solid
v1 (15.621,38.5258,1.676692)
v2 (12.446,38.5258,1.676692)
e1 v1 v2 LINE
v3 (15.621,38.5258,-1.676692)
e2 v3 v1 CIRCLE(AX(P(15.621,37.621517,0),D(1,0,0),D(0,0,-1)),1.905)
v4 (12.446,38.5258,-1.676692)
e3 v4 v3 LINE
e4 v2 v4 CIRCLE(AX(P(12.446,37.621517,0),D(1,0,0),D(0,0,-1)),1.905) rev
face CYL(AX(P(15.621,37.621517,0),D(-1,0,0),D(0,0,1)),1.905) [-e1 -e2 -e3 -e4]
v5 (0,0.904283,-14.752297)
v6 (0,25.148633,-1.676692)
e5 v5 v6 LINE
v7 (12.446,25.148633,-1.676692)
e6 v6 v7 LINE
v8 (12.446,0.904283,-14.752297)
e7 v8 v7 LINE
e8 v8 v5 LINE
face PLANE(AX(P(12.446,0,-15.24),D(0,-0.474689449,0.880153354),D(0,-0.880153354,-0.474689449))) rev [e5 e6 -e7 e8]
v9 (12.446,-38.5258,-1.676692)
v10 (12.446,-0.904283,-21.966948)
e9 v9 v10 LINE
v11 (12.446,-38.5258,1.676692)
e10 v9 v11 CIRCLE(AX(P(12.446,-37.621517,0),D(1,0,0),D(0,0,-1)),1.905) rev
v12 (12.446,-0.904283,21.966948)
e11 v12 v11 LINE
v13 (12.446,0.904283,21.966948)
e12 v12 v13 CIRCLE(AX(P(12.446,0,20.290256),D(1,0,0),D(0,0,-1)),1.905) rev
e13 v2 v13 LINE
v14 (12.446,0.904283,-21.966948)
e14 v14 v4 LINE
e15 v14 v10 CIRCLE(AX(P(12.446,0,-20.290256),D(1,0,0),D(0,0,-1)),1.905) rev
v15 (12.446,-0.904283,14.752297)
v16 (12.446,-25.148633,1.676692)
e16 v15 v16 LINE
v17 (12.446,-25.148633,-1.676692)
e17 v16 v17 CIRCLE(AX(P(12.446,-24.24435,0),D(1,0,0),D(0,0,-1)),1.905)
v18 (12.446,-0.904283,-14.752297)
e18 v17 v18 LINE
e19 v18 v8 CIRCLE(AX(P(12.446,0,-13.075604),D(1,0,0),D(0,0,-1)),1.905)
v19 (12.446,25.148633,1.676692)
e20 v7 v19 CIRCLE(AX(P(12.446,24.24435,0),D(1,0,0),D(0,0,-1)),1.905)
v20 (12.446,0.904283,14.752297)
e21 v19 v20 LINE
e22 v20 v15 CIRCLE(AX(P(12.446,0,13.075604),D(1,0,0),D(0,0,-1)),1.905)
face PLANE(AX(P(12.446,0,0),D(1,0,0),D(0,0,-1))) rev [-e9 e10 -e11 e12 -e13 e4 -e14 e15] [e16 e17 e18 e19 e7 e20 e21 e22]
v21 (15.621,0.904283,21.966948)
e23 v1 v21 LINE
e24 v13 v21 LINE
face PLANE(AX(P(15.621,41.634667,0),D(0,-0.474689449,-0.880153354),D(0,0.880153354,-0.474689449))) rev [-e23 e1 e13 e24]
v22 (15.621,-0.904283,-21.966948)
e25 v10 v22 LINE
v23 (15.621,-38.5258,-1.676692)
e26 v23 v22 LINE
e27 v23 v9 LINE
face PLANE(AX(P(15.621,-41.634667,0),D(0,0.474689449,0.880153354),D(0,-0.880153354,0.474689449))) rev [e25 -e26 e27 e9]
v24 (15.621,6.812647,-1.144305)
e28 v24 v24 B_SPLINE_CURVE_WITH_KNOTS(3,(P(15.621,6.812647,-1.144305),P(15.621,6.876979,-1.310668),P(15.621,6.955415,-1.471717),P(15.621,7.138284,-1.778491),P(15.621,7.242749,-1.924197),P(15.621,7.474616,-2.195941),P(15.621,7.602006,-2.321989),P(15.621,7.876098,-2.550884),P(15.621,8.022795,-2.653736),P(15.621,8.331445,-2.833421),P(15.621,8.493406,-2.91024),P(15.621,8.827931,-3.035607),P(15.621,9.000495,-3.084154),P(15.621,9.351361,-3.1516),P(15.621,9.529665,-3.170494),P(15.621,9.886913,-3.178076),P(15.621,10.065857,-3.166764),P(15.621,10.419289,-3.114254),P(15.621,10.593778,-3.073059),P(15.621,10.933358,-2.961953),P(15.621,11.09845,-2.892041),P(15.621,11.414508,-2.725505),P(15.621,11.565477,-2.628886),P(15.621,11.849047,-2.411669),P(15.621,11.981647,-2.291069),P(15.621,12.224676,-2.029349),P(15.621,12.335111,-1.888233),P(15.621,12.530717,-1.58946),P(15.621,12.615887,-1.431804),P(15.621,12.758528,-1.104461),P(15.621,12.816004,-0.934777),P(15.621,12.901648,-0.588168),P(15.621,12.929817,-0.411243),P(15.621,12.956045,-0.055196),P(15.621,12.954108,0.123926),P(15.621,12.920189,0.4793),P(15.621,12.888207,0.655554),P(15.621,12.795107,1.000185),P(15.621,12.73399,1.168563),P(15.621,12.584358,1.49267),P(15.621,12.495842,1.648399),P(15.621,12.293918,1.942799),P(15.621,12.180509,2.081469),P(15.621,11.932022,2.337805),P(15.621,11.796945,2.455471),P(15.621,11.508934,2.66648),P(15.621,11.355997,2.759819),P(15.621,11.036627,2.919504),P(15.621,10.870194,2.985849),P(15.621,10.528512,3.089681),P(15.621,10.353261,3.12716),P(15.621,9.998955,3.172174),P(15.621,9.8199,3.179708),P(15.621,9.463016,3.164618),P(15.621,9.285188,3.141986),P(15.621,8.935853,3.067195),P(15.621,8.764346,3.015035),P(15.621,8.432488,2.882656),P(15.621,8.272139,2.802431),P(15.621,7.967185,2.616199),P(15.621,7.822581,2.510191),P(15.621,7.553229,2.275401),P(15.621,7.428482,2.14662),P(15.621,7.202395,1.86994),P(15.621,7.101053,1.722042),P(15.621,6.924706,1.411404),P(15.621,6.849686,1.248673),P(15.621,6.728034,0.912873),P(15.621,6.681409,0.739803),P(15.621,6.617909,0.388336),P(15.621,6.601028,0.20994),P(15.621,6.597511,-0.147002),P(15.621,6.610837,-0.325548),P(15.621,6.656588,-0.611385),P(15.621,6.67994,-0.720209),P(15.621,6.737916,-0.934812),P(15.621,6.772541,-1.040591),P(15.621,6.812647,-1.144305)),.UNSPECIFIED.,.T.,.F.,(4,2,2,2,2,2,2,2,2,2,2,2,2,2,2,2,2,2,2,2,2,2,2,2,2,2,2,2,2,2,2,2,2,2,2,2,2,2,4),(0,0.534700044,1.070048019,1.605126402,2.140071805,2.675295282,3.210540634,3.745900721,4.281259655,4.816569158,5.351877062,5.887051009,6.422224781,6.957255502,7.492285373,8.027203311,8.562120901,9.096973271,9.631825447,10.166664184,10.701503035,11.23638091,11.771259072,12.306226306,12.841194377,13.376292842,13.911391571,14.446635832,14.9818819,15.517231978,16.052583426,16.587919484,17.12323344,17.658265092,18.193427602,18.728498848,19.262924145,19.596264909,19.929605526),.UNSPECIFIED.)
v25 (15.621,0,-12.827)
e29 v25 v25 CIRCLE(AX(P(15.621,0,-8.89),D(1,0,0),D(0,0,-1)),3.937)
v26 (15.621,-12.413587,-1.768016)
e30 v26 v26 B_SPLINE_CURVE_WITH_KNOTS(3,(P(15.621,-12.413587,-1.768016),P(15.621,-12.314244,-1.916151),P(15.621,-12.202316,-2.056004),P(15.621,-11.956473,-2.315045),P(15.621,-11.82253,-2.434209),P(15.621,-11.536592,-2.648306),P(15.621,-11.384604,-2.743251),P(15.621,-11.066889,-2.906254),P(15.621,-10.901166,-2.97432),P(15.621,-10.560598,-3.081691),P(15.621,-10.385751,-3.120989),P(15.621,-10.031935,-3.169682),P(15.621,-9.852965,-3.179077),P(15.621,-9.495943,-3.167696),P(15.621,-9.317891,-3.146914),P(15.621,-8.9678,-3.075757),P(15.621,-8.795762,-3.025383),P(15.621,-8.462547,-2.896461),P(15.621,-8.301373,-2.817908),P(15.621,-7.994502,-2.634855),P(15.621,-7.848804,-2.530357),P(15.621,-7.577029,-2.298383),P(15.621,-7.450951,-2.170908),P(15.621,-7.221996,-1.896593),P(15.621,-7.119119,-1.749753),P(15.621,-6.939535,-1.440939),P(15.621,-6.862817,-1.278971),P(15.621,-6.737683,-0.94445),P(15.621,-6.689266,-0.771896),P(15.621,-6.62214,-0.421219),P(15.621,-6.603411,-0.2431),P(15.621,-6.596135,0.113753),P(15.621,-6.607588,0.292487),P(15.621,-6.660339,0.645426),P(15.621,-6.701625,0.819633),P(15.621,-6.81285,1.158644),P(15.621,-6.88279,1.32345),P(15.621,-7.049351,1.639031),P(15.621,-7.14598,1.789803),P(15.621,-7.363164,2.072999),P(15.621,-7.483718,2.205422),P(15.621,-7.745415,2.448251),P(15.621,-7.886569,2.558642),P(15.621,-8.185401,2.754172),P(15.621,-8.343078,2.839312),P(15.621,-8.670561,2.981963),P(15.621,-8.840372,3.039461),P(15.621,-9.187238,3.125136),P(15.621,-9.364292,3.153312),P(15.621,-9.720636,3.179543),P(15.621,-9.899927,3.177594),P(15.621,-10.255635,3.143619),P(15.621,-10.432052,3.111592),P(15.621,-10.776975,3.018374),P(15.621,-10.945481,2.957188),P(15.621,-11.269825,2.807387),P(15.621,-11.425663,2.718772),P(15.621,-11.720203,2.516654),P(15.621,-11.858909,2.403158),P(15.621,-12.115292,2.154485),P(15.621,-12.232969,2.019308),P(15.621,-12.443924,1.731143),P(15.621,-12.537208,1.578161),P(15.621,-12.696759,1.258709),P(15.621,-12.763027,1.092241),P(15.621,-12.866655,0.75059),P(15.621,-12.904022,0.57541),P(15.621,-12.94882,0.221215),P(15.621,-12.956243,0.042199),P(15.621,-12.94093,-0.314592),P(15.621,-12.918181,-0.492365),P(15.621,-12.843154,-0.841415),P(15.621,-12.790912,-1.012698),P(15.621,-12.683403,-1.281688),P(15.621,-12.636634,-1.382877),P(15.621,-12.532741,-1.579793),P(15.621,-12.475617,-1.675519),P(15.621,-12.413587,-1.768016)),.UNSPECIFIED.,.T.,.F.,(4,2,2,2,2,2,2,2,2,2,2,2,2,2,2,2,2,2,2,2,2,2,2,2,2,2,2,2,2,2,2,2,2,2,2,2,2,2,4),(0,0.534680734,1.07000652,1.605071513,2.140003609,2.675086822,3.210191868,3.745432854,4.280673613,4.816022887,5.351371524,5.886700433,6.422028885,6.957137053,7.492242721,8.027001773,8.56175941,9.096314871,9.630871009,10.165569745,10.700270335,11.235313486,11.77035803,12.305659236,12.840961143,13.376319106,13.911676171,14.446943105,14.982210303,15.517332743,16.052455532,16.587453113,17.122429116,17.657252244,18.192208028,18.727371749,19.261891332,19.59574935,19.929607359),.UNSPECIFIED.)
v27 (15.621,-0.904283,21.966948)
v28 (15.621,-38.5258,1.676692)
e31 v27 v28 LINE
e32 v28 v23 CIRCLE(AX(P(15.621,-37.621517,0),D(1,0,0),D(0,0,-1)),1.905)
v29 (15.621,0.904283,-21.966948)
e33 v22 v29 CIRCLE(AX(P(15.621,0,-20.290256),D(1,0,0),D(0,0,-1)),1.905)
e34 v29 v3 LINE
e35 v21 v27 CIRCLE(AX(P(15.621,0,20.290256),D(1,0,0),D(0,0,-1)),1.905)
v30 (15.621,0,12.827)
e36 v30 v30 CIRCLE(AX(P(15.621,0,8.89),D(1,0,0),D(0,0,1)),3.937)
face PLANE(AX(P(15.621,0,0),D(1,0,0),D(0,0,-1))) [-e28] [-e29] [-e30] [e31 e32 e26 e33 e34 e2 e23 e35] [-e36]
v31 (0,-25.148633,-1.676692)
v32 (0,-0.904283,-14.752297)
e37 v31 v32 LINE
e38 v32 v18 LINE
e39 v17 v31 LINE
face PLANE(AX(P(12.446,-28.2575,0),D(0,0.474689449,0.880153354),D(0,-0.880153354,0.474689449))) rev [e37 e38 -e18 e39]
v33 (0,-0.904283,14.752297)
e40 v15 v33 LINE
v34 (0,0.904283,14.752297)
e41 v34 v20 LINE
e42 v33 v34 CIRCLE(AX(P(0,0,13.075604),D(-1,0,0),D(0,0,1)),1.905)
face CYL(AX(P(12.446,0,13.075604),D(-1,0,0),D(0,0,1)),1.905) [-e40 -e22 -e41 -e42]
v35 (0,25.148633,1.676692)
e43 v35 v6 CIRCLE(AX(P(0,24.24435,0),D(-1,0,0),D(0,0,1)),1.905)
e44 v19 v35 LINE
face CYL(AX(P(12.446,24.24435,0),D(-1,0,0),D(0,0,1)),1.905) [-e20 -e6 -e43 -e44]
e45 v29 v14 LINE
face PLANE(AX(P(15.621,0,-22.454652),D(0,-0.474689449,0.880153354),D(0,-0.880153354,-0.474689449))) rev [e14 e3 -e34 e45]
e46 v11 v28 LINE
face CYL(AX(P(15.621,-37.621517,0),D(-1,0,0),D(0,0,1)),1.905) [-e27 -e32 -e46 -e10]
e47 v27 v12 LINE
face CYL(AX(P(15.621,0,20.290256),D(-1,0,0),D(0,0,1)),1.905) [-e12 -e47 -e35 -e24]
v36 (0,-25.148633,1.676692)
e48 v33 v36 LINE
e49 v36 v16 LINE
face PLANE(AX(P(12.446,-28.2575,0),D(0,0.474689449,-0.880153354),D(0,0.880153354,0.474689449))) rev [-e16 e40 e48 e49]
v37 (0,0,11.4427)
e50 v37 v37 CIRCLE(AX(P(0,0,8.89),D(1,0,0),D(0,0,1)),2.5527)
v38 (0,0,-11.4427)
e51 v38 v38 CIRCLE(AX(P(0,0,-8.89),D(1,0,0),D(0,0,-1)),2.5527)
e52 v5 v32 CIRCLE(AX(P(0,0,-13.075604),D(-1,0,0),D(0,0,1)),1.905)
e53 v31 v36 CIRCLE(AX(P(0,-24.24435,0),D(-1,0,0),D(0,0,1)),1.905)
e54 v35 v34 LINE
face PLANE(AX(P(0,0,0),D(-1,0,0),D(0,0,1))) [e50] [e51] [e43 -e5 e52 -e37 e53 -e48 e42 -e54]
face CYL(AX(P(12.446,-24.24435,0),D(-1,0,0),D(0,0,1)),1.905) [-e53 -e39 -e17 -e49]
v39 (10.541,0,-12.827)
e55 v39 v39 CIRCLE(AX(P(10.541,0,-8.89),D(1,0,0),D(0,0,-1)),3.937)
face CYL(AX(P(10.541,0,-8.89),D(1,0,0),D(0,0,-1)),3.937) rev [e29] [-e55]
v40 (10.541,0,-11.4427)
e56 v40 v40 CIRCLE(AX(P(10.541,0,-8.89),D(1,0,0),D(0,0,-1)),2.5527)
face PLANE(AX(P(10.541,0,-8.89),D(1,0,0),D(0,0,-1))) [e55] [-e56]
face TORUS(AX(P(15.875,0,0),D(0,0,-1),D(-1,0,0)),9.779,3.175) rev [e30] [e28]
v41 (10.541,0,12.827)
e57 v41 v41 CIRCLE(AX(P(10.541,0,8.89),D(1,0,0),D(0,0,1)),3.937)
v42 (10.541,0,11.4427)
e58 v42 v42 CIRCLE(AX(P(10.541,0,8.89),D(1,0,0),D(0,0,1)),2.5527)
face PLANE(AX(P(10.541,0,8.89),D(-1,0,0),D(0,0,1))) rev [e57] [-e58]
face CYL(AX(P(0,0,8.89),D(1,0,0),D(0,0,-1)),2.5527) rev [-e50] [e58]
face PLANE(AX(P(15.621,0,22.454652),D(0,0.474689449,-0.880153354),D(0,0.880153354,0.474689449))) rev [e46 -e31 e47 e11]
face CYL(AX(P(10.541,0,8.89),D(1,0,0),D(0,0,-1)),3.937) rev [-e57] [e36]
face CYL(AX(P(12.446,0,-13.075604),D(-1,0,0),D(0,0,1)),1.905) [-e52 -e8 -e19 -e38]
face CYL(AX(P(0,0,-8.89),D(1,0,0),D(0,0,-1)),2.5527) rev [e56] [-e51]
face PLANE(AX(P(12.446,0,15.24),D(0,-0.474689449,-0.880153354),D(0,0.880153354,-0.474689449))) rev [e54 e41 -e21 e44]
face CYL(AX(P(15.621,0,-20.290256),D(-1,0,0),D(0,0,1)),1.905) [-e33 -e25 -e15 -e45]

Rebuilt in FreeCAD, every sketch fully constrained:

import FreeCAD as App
import Part
import Sketcher

V = App.Vector
Q = App.Units.Quantity


def edges_at(feature, points):
    """Names of the edges that pass closest to the given points."""
    edges = feature.Shape.Edges
    near = lambda p: min(range(len(edges)), key=lambda i: edges[i].distToShape(Part.Vertex(*p))[0])
    return sorted({f"Edge{near(p) + 1}" for p in points})

doc = App.newDocument("Part")
body = doc.addObject("PartDesign::Body", "Body")

sketch1 = doc.addObject("Sketcher::SketchObject", "Sketch")
body.addObject(sketch1)
sketch1.AttachmentSupport = (doc.YZ_Plane, [""])
sketch1.MapMode = "FlatFace"
sketch1.addGeometry([
    Part.LineSegment(V(-28.2575, 0, 0), V(0, -15.24, 0)),
    Part.LineSegment(V(0, -15.24, 0), V(28.2575, 0, 0)),
    Part.LineSegment(V(28.2575, 0, 0), V(0, 15.24, 0)),
    Part.LineSegment(V(0, 15.24, 0), V(-28.2575, 0, 0)),
], False)
sketch1.addConstraint([
    Sketcher.Constraint("Coincident", 0, 2, 1, 1),
    Sketcher.Constraint("Coincident", 1, 2, 2, 1),
    Sketcher.Constraint("Coincident", 2, 2, 3, 1),
    Sketcher.Constraint("Coincident", 3, 2, 0, 1),
    Sketcher.Constraint("Symmetric", 0, 2, 2, 2, -1, 1),
    Sketcher.Constraint("Symmetric", 1, 2, 3, 2, -1, 1),
    Sketcher.Constraint("PointOnObject", 0, 2, -2),
    Sketcher.Constraint("PointOnObject", 1, 2, -1),
    Sketcher.Constraint("DistanceY", 0, 2, -1, 1, Q("0.6 in")),
    Sketcher.Constraint("DistanceX", 3, 2, 1, 2, Q("2.225 in")),
])
pad1 = doc.addObject("PartDesign::Pad", "Pad")
body.addObject(pad1)
pad1.Profile = sketch1
pad1.Length = Q("0.49 in")

sketch2 = doc.addObject("Sketcher::SketchObject", "Sketch001")
body.addObject(sketch2)
sketch2.AttachmentSupport = (doc.YZ_Plane, [""])
sketch2.MapMode = "FlatFace"
sketch2.AttachmentOffset = App.Placement(V(0, 0, 0.49 * 25.4), App.Rotation())
sketch2.addGeometry([
    Part.LineSegment(V(0, 22.454652, 0), V(-41.634667, 0, 0)),
    Part.LineSegment(V(-41.634667, 0, 0), V(0, -22.454652, 0)),
    Part.LineSegment(V(0, -22.454652, 0), V(41.634667, 0, 0)),
    Part.LineSegment(V(41.634667, 0, 0), V(0, 22.454652, 0)),
], False)
sketch2.addConstraint([
    Sketcher.Constraint("Coincident", 0, 2, 1, 1),
    Sketcher.Constraint("Coincident", 1, 2, 2, 1),
    Sketcher.Constraint("Coincident", 2, 2, 3, 1),
    Sketcher.Constraint("Coincident", 3, 2, 0, 1),
    Sketcher.Constraint("Symmetric", 0, 2, 2, 2, -1, 1),
    Sketcher.Constraint("Symmetric", 1, 2, 3, 2, -1, 1),
    Sketcher.Constraint("PointOnObject", 0, 2, -1),
    Sketcher.Constraint("PointOnObject", 1, 2, -2),
    Sketcher.Constraint("Distance", 0, Q("47.303878 mm")),
    Sketcher.Constraint("DistanceY", 1, 2, -1, 1, Q("22.454652 mm")),
])
pad2 = doc.addObject("PartDesign::Pad", "Pad001")
body.addObject(pad2)
pad2.Profile = sketch2
pad2.Length = Q("0.125 in")
doc.recompute()

fillet = doc.addObject("PartDesign::Fillet", "Fillet")
body.addObject(fillet)
fillet.Base = (pad2, edges_at(pad2, [
    (14.034, 41.635, 0),
    (14.034, 0, 22.455),
    (14.034, -41.635, 0),
    (14.034, 0, -22.455),
    (6.223, 0, -15.24),
    (6.223, -28.258, 0),
    (6.223, 0, 15.24),
    (6.223, 28.258, 0),
]))
fillet.Radius = Q("0.075 in")

sketch3 = doc.addObject("Sketcher::SketchObject", "Sketch002")
body.addObject(sketch3)
sketch3.AttachmentSupport = (doc.XZ_Plane, [""])
sketch3.MapMode = "FlatFace"
sketch3.addGeometry(Part.Circle(V(6.096, 0, 0), V(0, 0, 1), 3.175), False)
sketch3.addGeometry(Part.LineSegment(V(15.875, 0, 0), V(15.875, 10, 0)), True)
sketch3.addConstraint([
    Sketcher.Constraint("Vertical", 1),
    Sketcher.Constraint("PointOnObject", 0, 3, -1),
    Sketcher.Constraint("PointOnObject", 1, 1, -1),
    Sketcher.Constraint("Diameter", 0, Q("0.25 in")),
    Sketcher.Constraint("DistanceX", -1, 1, 0, 3, Q("0.24 in")),
    Sketcher.Constraint("DistanceX", -1, 1, 1, 1, Q("0.625 in")),
    Sketcher.Constraint("DistanceY", 1, 1, 1, 2, Q("10 mm")),
])
groove = doc.addObject("PartDesign::Groove", "Groove")
body.addObject(groove)
groove.Profile = sketch3
groove.ReferenceAxis = (sketch3, ["Axis0"])
groove.Angle = 360

sketch4 = doc.addObject("Sketcher::SketchObject", "Sketch003")
body.addObject(sketch4)
sketch4.AttachmentSupport = (doc.YZ_Plane, [""])
sketch4.MapMode = "FlatFace"
sketch4.AttachmentOffset = App.Placement(V(0, 0, 0.615 * 25.4), App.Rotation())
sketch4.addGeometry([
    Part.Circle(V(0, -8.89, 0), V(0, 0, 1), 3.937),
    Part.Circle(V(0, 8.89, 0), V(0, 0, 1), 3.937),
], False)
sketch4.addConstraint([
    Sketcher.Constraint("Equal", 0, 1),
    Sketcher.Constraint("Symmetric", 0, 3, 1, 3, -1, 1),
    Sketcher.Constraint("PointOnObject", 0, 3, -2),
    Sketcher.Constraint("Diameter", 0, Q("0.31 in")),
    Sketcher.Constraint("DistanceY", 0, 3, 1, 3, Q("0.7 in")),
])
pocket1 = doc.addObject("PartDesign::Pocket", "Pocket")
body.addObject(pocket1)
pocket1.Profile = sketch4
pocket1.Length = Q("0.2 in")

sketch5 = doc.addObject("Sketcher::SketchObject", "Sketch004")
body.addObject(sketch5)
sketch5.AttachmentSupport = (doc.YZ_Plane, [""])
sketch5.MapMode = "FlatFace"
sketch5.AttachmentOffset = App.Placement(V(0, 0, 0.415 * 25.4), App.Rotation())
sketch5.addGeometry([
    Part.Circle(V(0, -8.89, 0), V(0, 0, 1), 2.5527),
    Part.Circle(V(0, 8.89, 0), V(0, 0, 1), 2.5527),
], False)
sketch5.addConstraint([
    Sketcher.Constraint("Equal", 0, 1),
    Sketcher.Constraint("Symmetric", 0, 3, 1, 3, -1, 1),
    Sketcher.Constraint("PointOnObject", 0, 3, -2),
    Sketcher.Constraint("Diameter", 0, Q("0.201 in")),
    Sketcher.Constraint("DistanceY", 0, 3, 1, 3, Q("0.7 in")),
])
pocket2 = doc.addObject("PartDesign::Pocket", "Pocket001")
body.addObject(pocket2)
pocket2.Profile = sketch5
pocket2.Type = "ThroughAll"

doc.recompute()
